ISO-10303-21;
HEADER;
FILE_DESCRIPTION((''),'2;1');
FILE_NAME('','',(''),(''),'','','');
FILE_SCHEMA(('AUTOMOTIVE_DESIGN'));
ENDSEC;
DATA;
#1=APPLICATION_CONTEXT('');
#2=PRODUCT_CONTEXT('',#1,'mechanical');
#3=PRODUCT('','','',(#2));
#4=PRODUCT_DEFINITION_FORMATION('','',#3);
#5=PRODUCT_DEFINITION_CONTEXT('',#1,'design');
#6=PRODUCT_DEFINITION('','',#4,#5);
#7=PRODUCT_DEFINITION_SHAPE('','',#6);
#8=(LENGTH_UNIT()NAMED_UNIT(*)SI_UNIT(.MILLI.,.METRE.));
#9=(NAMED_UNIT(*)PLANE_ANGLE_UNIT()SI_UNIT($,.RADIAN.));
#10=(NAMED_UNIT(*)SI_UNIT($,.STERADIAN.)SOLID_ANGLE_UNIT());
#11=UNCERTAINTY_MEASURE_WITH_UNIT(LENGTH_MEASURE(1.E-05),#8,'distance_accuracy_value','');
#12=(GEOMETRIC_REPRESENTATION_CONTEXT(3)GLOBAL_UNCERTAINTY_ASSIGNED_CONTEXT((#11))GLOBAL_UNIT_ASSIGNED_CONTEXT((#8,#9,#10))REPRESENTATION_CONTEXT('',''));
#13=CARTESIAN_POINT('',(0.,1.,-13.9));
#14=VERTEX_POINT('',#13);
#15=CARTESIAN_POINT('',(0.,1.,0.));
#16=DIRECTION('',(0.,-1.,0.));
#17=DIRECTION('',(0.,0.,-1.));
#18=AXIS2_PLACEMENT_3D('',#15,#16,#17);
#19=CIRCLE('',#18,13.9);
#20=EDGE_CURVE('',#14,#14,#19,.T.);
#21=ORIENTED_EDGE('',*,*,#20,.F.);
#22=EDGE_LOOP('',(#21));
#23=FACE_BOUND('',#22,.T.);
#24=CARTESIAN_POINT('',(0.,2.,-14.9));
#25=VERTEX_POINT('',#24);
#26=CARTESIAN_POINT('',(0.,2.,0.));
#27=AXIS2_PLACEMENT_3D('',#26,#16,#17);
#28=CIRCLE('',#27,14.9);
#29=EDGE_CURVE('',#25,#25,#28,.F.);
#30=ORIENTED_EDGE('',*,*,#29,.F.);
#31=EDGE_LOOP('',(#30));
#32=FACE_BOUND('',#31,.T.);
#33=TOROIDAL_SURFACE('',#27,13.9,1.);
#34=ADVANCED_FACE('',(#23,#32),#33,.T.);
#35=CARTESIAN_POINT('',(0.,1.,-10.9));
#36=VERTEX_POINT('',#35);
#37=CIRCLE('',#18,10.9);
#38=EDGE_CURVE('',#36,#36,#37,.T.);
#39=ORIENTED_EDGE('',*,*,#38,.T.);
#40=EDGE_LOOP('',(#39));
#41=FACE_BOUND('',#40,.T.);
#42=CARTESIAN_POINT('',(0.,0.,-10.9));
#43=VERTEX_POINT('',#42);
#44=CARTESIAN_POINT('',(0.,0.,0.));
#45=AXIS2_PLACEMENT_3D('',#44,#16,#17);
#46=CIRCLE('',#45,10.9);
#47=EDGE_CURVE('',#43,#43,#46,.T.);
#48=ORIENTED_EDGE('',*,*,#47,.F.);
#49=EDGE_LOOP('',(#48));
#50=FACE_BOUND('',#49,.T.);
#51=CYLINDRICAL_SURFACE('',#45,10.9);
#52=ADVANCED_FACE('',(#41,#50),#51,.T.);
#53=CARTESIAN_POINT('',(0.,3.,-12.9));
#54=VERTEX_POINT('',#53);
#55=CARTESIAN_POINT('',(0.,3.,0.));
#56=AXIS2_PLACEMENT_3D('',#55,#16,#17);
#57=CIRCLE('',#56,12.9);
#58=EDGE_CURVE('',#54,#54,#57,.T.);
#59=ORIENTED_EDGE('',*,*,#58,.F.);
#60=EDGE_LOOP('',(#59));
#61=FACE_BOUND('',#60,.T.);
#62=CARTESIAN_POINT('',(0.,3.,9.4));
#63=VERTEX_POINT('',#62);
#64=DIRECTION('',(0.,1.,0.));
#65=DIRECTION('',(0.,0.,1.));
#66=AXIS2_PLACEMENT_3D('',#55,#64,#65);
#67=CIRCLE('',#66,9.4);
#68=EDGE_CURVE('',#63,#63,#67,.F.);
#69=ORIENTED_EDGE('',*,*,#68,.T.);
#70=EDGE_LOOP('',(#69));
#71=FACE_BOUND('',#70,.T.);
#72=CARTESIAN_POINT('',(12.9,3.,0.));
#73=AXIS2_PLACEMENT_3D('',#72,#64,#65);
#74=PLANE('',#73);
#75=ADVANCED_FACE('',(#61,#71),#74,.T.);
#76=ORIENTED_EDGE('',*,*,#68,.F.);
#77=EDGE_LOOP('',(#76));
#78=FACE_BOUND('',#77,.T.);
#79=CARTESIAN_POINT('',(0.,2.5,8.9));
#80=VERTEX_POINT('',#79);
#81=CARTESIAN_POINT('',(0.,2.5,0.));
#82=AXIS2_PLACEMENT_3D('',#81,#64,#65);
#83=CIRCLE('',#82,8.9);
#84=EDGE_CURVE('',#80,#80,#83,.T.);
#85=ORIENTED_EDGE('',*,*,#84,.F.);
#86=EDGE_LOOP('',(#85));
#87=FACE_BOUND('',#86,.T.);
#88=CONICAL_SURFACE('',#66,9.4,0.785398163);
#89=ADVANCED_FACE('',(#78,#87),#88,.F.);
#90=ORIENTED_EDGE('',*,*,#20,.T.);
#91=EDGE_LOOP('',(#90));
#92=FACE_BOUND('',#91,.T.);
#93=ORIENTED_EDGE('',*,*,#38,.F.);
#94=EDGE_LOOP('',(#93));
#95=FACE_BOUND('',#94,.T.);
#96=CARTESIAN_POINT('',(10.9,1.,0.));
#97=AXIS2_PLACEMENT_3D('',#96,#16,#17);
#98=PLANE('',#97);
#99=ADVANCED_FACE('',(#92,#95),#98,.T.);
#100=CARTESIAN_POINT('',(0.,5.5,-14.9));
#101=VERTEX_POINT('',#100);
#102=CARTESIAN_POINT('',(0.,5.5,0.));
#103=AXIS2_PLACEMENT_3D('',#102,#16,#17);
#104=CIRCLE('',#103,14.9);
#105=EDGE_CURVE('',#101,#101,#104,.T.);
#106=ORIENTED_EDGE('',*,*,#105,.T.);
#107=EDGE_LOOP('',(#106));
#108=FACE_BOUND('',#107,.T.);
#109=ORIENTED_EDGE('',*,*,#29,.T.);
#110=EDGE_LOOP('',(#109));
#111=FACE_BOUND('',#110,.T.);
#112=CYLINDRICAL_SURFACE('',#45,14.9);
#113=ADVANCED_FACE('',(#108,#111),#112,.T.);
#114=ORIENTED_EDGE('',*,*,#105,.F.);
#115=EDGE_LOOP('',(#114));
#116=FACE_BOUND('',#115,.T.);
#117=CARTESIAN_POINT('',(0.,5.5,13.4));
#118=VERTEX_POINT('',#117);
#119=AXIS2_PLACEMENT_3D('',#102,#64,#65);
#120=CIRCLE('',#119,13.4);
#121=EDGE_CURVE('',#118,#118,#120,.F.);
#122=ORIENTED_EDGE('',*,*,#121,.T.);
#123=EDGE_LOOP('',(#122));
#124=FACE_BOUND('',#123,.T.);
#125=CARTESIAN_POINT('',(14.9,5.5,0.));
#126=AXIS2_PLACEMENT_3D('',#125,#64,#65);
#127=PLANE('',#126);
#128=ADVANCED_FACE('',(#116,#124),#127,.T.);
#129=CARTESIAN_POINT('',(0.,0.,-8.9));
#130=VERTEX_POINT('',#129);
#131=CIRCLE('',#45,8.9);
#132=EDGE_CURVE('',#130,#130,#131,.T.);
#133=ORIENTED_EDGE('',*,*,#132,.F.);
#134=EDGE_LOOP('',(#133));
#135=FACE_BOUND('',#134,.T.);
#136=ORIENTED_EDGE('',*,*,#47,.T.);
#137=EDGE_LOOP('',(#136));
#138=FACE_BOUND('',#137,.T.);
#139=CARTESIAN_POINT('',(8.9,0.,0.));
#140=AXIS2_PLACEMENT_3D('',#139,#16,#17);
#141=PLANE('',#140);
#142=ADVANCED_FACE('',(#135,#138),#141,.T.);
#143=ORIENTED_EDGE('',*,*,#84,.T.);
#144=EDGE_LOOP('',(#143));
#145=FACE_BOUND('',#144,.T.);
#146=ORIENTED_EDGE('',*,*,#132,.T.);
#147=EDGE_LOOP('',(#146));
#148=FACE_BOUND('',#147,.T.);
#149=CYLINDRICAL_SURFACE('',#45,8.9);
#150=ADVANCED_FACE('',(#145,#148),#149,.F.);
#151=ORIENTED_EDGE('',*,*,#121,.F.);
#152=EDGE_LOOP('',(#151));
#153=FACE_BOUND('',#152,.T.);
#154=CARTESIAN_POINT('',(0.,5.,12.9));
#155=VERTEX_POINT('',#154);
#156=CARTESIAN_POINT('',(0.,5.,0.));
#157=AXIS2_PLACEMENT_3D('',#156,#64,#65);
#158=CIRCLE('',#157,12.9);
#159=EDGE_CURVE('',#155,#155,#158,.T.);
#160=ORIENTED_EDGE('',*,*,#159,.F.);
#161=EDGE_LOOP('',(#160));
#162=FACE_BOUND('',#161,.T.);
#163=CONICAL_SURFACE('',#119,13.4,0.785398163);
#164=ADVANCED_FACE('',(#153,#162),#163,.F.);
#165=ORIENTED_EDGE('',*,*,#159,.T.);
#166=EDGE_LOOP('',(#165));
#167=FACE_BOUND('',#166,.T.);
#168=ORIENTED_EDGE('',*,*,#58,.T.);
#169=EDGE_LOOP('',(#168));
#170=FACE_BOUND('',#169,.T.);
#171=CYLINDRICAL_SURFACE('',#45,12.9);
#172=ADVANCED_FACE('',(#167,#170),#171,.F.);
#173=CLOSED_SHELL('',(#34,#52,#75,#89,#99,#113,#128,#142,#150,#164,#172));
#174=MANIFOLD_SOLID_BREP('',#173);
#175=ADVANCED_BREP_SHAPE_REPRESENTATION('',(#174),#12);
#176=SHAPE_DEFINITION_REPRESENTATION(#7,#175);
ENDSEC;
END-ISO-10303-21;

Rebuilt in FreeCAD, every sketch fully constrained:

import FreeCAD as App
import Part
import Sketcher

V = App.Vector


def edges_at(feature, points):
    """Names of the edges that pass closest to the given points."""
    edges = feature.Shape.Edges
    near = lambda p: min(range(len(edges)), key=lambda i: edges[i].distToShape(Part.Vertex(*p))[0])
    return sorted({f"Edge{near(p) + 1}" for p in points})


def add_polygon(sketch, points):
    """Adds a closed chain of lines whose ends are joined by coincident constraints."""
    first, n = sketch.GeometryCount, len(points)
    for a, b in zip(points, points[1:] + points[:1]):
        sketch.addGeometry(Part.LineSegment(App.Vector(*a, 0), App.Vector(*b, 0)), False)
    for i in range(n):
        sketch.addConstraint(Sketcher.Constraint("Coincident", first + i, 2, first + (i + 1) % n, 1))

doc = App.newDocument("Part")
body = doc.addObject("PartDesign::Body", "Body")

# Sketch on XY plane
sketch1 = body.newObject("Sketcher::SketchObject", "Sketch")
sketch1.AttachmentSupport = (doc.getObject("XY_Plane"), [""])
sketch1.MapMode = "FlatFace"
add_polygon(sketch1, [(12.9, 5.5), (12.9, 3), (8.9, 3), (8.9, 0), (10.9, 0), (10.9, 1), (14.9, 1), (14.9, 5.5)])  # lines 0-7
sketch1.addConstraint(Sketcher.Constraint("Vertical", 0))
sketch1.addConstraint(Sketcher.Constraint("Horizontal", 1))
sketch1.addConstraint(Sketcher.Constraint("Vertical", 2))
sketch1.addConstraint(Sketcher.Constraint("Horizontal", 3))
sketch1.addConstraint(Sketcher.Constraint("Vertical", 4))
sketch1.addConstraint(Sketcher.Constraint("Horizontal", 5))
sketch1.addConstraint(Sketcher.Constraint("Vertical", 6))
sketch1.addConstraint(Sketcher.Constraint("Horizontal", 7))
sketch1.addConstraint(Sketcher.Constraint("PointOnObject", 2, 2, -1))
sketch1.addConstraint(Sketcher.Constraint("Equal", 1, 5))
sketch1.addConstraint(Sketcher.Constraint("DistanceX", 1, 2, 1, 1, 4.0))
sketch1.addConstraint(Sketcher.Constraint("DistanceX", 3, 1, 3, 2, 2.0))
sketch1.addConstraint(Sketcher.Constraint("DistanceY", 2, 2, 2, 1, 3.0))
sketch1.addConstraint(Sketcher.Constraint("DistanceY", 4, 1, 4, 2, 1.0))
sketch1.addConstraint(Sketcher.Constraint("DistanceY", 0, 2, 0, 1, 2.5))
sketch1.addConstraint(Sketcher.Constraint("DistanceX", -1, 1, 0, 2, 12.9))
revolution = body.newObject("PartDesign::Revolution", "Revolution")
revolution.Profile = sketch1
revolution.ReferenceAxis = (sketch1, ["V_Axis"])
revolution.Angle = 360
doc.recompute()

fillet = body.newObject("PartDesign::Fillet", "Fillet")
fillet.Base = (revolution, edges_at(revolution, [(0, 1, 14.9)]))
fillet.Radius = 1
doc.recompute()

chamfer = body.newObject("PartDesign::Chamfer", "Chamfer")
chamfer.Base = (fillet, edges_at(fillet, [(0, 5.5, 12.9), (0, 3, 8.9)]))
chamfer.Size = 0.5

doc.recompute()
